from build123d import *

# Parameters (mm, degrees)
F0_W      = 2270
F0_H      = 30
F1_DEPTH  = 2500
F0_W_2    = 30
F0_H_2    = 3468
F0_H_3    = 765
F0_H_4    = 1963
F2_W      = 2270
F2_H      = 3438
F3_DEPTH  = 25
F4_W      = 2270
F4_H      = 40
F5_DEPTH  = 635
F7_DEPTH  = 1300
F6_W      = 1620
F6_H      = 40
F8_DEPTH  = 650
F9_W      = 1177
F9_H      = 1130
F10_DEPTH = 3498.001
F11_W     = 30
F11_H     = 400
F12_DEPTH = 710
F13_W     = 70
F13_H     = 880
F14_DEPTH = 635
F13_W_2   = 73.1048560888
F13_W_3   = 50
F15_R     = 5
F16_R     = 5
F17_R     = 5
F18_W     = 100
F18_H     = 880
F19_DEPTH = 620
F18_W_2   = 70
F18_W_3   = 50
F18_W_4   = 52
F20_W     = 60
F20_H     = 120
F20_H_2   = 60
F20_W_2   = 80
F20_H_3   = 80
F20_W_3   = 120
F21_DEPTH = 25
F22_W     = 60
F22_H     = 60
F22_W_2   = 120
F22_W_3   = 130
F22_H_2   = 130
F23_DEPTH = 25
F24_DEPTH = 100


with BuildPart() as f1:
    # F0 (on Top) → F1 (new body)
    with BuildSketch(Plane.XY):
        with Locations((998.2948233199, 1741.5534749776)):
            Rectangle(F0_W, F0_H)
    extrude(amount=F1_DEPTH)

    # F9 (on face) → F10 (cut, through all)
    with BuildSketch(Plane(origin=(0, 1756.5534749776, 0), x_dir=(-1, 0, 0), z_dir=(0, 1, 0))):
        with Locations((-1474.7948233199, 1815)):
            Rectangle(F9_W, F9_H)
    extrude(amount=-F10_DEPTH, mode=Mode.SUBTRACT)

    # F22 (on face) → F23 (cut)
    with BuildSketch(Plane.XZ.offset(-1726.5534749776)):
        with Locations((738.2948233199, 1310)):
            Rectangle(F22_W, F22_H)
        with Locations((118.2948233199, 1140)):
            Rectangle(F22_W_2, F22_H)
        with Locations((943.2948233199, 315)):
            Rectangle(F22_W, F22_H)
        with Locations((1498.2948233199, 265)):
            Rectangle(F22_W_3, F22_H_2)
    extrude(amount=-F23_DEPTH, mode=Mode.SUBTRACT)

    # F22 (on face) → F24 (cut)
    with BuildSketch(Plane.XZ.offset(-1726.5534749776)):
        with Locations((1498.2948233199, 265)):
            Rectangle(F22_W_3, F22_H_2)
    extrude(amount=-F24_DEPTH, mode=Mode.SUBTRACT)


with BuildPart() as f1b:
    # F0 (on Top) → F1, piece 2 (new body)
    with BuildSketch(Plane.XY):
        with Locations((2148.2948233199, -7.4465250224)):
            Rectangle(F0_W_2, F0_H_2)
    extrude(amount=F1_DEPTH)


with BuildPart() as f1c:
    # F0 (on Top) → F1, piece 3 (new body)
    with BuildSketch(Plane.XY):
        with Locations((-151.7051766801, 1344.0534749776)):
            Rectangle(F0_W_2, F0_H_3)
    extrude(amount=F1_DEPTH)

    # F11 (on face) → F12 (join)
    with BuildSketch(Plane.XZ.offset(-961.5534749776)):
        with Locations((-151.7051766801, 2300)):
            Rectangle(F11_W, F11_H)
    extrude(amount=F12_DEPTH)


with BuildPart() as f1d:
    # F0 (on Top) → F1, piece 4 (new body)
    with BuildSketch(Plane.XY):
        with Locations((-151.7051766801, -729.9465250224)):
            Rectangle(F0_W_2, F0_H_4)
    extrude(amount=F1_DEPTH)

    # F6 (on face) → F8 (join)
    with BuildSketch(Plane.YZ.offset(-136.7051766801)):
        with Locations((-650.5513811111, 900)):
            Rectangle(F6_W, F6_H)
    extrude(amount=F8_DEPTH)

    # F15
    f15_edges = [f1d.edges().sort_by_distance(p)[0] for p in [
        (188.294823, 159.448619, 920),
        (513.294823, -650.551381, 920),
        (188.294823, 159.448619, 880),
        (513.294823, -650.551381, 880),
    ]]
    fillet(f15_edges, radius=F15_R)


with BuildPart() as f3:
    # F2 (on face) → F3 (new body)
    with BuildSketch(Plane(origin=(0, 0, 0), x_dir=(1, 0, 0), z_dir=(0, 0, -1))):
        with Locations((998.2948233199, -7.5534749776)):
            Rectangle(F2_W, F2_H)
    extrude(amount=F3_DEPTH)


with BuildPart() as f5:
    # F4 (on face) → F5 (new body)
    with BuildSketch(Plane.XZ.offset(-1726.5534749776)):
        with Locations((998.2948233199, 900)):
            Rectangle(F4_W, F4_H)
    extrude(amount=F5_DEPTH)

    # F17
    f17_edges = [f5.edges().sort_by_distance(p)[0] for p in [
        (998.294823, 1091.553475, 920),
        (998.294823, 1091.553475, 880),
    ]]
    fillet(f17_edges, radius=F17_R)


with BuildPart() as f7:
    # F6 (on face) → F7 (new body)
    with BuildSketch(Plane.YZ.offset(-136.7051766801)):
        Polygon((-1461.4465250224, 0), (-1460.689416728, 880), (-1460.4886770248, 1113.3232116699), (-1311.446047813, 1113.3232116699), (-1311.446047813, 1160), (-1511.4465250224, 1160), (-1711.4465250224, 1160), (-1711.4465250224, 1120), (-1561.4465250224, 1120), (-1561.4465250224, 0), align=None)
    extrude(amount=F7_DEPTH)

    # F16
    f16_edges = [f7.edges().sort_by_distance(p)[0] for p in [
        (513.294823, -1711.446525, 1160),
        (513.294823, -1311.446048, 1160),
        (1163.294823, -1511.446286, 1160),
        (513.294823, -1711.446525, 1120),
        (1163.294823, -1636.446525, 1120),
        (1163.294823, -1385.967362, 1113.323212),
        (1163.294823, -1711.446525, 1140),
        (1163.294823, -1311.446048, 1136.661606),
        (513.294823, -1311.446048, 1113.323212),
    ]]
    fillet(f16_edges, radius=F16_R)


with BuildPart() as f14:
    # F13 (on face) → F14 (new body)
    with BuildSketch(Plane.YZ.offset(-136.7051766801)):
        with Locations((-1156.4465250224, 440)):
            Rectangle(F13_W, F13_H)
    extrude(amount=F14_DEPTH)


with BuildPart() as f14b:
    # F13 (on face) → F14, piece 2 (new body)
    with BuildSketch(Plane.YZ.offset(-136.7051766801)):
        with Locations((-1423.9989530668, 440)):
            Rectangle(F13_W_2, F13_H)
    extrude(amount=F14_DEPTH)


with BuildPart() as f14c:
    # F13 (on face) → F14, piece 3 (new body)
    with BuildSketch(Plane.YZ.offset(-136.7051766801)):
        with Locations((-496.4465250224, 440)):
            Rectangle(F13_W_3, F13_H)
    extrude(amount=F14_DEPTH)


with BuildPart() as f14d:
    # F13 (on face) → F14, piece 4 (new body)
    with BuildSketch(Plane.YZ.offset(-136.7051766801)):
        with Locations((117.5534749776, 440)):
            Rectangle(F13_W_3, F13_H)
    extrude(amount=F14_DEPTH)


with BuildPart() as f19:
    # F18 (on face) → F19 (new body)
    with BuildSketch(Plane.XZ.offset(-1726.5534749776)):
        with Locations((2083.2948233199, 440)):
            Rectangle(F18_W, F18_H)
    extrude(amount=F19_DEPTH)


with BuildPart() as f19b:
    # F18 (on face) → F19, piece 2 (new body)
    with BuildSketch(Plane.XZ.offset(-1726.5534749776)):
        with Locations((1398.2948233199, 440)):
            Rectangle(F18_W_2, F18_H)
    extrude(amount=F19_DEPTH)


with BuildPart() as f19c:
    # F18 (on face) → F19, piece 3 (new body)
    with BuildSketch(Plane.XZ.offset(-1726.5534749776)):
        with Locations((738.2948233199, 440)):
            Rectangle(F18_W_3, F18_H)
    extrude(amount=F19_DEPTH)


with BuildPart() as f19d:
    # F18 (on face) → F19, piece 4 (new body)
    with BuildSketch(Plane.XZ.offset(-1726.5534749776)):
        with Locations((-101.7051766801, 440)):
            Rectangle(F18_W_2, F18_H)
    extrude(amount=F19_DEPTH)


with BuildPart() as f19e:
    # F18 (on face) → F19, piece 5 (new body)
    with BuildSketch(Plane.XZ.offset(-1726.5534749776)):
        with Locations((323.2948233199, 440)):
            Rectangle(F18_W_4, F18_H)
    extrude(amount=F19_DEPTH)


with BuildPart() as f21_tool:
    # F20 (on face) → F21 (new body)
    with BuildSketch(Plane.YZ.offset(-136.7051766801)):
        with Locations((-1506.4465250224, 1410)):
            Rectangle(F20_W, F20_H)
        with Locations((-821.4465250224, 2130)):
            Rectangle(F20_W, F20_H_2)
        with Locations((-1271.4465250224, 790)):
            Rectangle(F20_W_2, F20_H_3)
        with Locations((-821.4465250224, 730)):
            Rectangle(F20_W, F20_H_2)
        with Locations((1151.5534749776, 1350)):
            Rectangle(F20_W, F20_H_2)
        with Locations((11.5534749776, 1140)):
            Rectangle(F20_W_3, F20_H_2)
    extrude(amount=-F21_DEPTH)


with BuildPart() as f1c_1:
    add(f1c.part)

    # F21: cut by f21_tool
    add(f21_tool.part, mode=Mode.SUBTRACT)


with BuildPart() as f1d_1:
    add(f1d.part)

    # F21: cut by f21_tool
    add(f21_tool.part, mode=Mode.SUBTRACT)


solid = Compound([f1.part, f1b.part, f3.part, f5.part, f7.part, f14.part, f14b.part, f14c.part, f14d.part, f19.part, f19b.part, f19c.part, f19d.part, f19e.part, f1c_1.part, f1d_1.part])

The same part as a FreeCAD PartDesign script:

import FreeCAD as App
import Part
import Sketcher


def edges_at(feature, points):
    """Names of the edges that pass closest to the given points."""
    edges = feature.Shape.Edges
    near = lambda p: min(range(len(edges)), key=lambda i: edges[i].distToShape(Part.Vertex(*p))[0])
    return sorted({f"Edge{near(p) + 1}" for p in points})


def add_polygon(sketch, points):
    """Adds a closed chain of lines whose ends are joined by coincident constraints."""
    first, n = sketch.GeometryCount, len(points)
    for a, b in zip(points, points[1:] + points[:1]):
        sketch.addGeometry(Part.LineSegment(App.Vector(*a, 0), App.Vector(*b, 0)), False)
    for i in range(n):
        sketch.addConstraint(Sketcher.Constraint("Coincident", first + i, 2, first + (i + 1) % n, 1))

doc = App.newDocument("Part")
body = doc.addObject("PartDesign::Body", "Body")

# Sketch on XY plane
sketch1 = doc.addObject("Sketcher::SketchObject", "Sketch")
body.addObject(sketch1)
sketch1.AttachmentSupport = (doc.XY_Plane, [""])
sketch1.MapMode = "FlatFace"
add_polygon(sketch1, [(-136.705177, 1756.553475), (-136.705177, 1726.553475), (2133.294823, 1726.553475), (2133.294823, 1756.553475)])  # lines 0-3
sketch1.addConstraint(Sketcher.Constraint("Vertical", 0))
sketch1.addConstraint(Sketcher.Constraint("Horizontal", 1))
sketch1.addConstraint(Sketcher.Constraint("Vertical", 2))
sketch1.addConstraint(Sketcher.Constraint("Horizontal", 3))
sketch1.addConstraint(Sketcher.Constraint("DistanceX", 1, 1, 1, 2, 2270.0))
sketch1.addConstraint(Sketcher.Constraint("DistanceY", 0, 2, 0, 1, 30.0))
sketch1.addConstraint(Sketcher.Constraint("DistanceX", 0, 2, -1, 1, 136.705177))
sketch1.addConstraint(Sketcher.Constraint("DistanceY", -1, 1, 0, 2, 1726.553475))
pad1 = doc.addObject("PartDesign::Pad", "Pad")
body.addObject(pad1)
pad1.Profile = sketch1
pad1.Length = 2500

# Sketch on XZ plane
sketch2 = doc.addObject("Sketcher::SketchObject", "Sketch001")
body.addObject(sketch2)
sketch2.AttachmentSupport = (doc.XZ_Plane, [""])
sketch2.MapMode = "FlatFace"
sketch2.AttachmentOffset = App.Placement(App.Vector(0, 0, -1756.553475), App.Rotation())
add_polygon(sketch2, [(2063.294823, 2380), (2063.294823, 1250), (886.294823, 1250), (886.294823, 2380)])  # lines 0-3
sketch2.addConstraint(Sketcher.Constraint("Vertical", 0))
sketch2.addConstraint(Sketcher.Constraint("Horizontal", 1))
sketch2.addConstraint(Sketcher.Constraint("Vertical", 2))
sketch2.addConstraint(Sketcher.Constraint("Horizontal", 3))
sketch2.addConstraint(Sketcher.Constraint("DistanceX", 1, 2, 1, 1, 1177.0))
sketch2.addConstraint(Sketcher.Constraint("DistanceY", 0, 2, 0, 1, 1130.0))
sketch2.addConstraint(Sketcher.Constraint("DistanceY", -1, 1, 0, 2, 1250.0))
sketch2.addConstraint(Sketcher.Constraint("DistanceX", -1, 1, 0, 2, 2063.294823))
pocket1 = doc.addObject("PartDesign::Pocket", "Pocket")
body.addObject(pocket1)
pocket1.Profile = sketch2
pocket1.Type = "ThroughAll"
pocket1.Reversed = True

# Sketch on XZ plane
sketch3 = doc.addObject("Sketcher::SketchObject", "Sketch002")
body.addObject(sketch3)
sketch3.AttachmentSupport = (doc.XZ_Plane, [""])
sketch3.MapMode = "FlatFace"
sketch3.AttachmentOffset = App.Placement(App.Vector(0, 0, -1726.553475), App.Rotation())
add_polygon(sketch3, [(708.294823, 1340), (708.294823, 1280), (768.294823, 1280), (768.294823, 1340)])  # lines 0-3
add_polygon(sketch3, [(58.294823, 1170), (58.294823, 1110), (178.294823, 1110), (178.294823, 1170)])  # lines 4-7
add_polygon(sketch3, [(913.294823, 345), (913.294823, 285), (973.294823, 285), (973.294823, 345)])  # lines 8-11
add_polygon(sketch3, [(1433.294823, 330), (1433.294823, 200), (1563.294823, 200), (1563.294823, 330)])  # lines 12-15
sketch3.addConstraint(Sketcher.Constraint("Vertical", 0))
sketch3.addConstraint(Sketcher.Constraint("Horizontal", 1))
sketch3.addConstraint(Sketcher.Constraint("Vertical", 2))
sketch3.addConstraint(Sketcher.Constraint("Horizontal", 3))
sketch3.addConstraint(Sketcher.Constraint("Vertical", 4))
sketch3.addConstraint(Sketcher.Constraint("Horizontal", 5))
sketch3.addConstraint(Sketcher.Constraint("Vertical", 6))
sketch3.addConstraint(Sketcher.Constraint("Horizontal", 7))
sketch3.addConstraint(Sketcher.Constraint("Vertical", 8))
sketch3.addConstraint(Sketcher.Constraint("Horizontal", 9))
sketch3.addConstraint(Sketcher.Constraint("Vertical", 10))
sketch3.addConstraint(Sketcher.Constraint("Horizontal", 11))
sketch3.addConstraint(Sketcher.Constraint("Vertical", 12))
sketch3.addConstraint(Sketcher.Constraint("Horizontal", 13))
sketch3.addConstraint(Sketcher.Constraint("Vertical", 14))
sketch3.addConstraint(Sketcher.Constraint("Horizontal", 15))
sketch3.addConstraint(Sketcher.Constraint("Equal", 3, 9))
sketch3.addConstraint(Sketcher.Constraint("Equal", 11, 0))
sketch3.addConstraint(Sketcher.Constraint("Equal", 2, 4))
sketch3.addConstraint(Sketcher.Constraint("Equal", 6, 8))
sketch3.addConstraint(Sketcher.Constraint("Equal", 15, 12))
sketch3.addConstraint(Sketcher.Constraint("DistanceX", 1, 1, 1, 2, 60.0))
sketch3.addConstraint(Sketcher.Constraint("DistanceX", 5, 1, 5, 2, 120.0))
sketch3.addConstraint(Sketcher.Constraint("DistanceX", 13, 1, 13, 2, 130.0))
sketch3.addConstraint(Sketcher.Constraint("DistanceY", -1, 1, 0, 2, 1280.0))
sketch3.addConstraint(Sketcher.Constraint("DistanceY", -1, 1, 4, 2, 1110.0))
sketch3.addConstraint(Sketcher.Constraint("DistanceY", -1, 1, 8, 2, 285.0))
sketch3.addConstraint(Sketcher.Constraint("DistanceY", -1, 1, 12, 2, 200.0))
sketch3.addConstraint(Sketcher.Constraint("DistanceX", 4, 2, 0, 2, 650.0))
sketch3.addConstraint(Sketcher.Constraint("DistanceX", 1, 2, 8, 2, 145.0))
sketch3.addConstraint(Sketcher.Constraint("DistanceX", 9, 2, 12, 2, 460.0))
sketch3.addConstraint(Sketcher.Constraint("DistanceX", -1, 1, 0, 2, 708.294823))
pocket2 = doc.addObject("PartDesign::Pocket", "Pocket001")
body.addObject(pocket2)
pocket2.Profile = sketch3
pocket2.Length = 25

# Sketch on XZ plane
sketch4 = doc.addObject("Sketcher::SketchObject", "Sketch003")
body.addObject(sketch4)
sketch4.AttachmentSupport = (doc.XZ_Plane, [""])
sketch4.MapMode = "FlatFace"
sketch4.AttachmentOffset = App.Placement(App.Vector(0, 0, -1726.553475), App.Rotation())
add_polygon(sketch4, [(1433.294823, 330), (1433.294823, 200), (1563.294823, 200), (1563.294823, 330)])  # lines 0-3
sketch4.addConstraint(Sketcher.Constraint("Vertical", 0))
sketch4.addConstraint(Sketcher.Constraint("Horizontal", 1))
sketch4.addConstraint(Sketcher.Constraint("Vertical", 2))
sketch4.addConstraint(Sketcher.Constraint("Horizontal", 3))
sketch4.addConstraint(Sketcher.Constraint("Equal", 3, 0))
sketch4.addConstraint(Sketcher.Constraint("DistanceX", 1, 1, 1, 2, 130.0))
sketch4.addConstraint(Sketcher.Constraint("DistanceY", -1, 1, 0, 2, 200.0))
sketch4.addConstraint(Sketcher.Constraint("DistanceX", -1, 1, 0, 2, 1433.294823))
pocket3 = doc.addObject("PartDesign::Pocket", "Pocket002")
body.addObject(pocket3)
pocket3.Profile = sketch4
pocket3.Length = 100
body2 = doc.addObject("PartDesign::Body", "Body001")

# Sketch on XY plane
sketch5 = doc.addObject("Sketcher::SketchObject", "Sketch004")
body2.addObject(sketch5)
sketch5.AttachmentSupport = (doc.getObject("XY_Plane001"), [""])
sketch5.MapMode = "FlatFace"
add_polygon(sketch5, [(2133.294823, 1726.553475), (2133.294823, -1741.446525), (2163.294823, -1741.446525), (2163.294823, 1726.553475)])  # lines 0-3
sketch5.addConstraint(Sketcher.Constraint("Vertical", 0))
sketch5.addConstraint(Sketcher.Constraint("Horizontal", 1))
sketch5.addConstraint(Sketcher.Constraint("Vertical", 2))
sketch5.addConstraint(Sketcher.Constraint("Horizontal", 3))
sketch5.addConstraint(Sketcher.Constraint("DistanceX", 1, 1, 1, 2, 30.0))
sketch5.addConstraint(Sketcher.Constraint("DistanceY", 0, 2, 0, 1, 3468.0))
sketch5.addConstraint(Sketcher.Constraint("DistanceX", -1, 1, 0, 2, 2133.294823))
sketch5.addConstraint(Sketcher.Constraint("DistanceY", 0, 2, -1, 1, 1741.446525))
pad2 = doc.addObject("PartDesign::Pad", "Pad001")
body2.addObject(pad2)
pad2.Profile = sketch5
pad2.Length = 2500
body3 = doc.addObject("PartDesign::Body", "Body002")

# Sketch on XY plane
sketch6 = doc.addObject("Sketcher::SketchObject", "Sketch005")
body3.addObject(sketch6)
sketch6.AttachmentSupport = (doc.getObject("XY_Plane002"), [""])
sketch6.MapMode = "FlatFace"
add_polygon(sketch6, [(-166.705177, 1726.553475), (-166.705177, 961.553475), (-136.705177, 961.553475), (-136.705177, 1726.553475)])  # lines 0-3
sketch6.addConstraint(Sketcher.Constraint("Vertical", 0))
sketch6.addConstraint(Sketcher.Constraint("Horizontal", 1))
sketch6.addConstraint(Sketcher.Constraint("Vertical", 2))
sketch6.addConstraint(Sketcher.Constraint("Horizontal", 3))
sketch6.addConstraint(Sketcher.Constraint("DistanceX", 1, 1, 1, 2, 30.0))
sketch6.addConstraint(Sketcher.Constraint("DistanceY", 0, 2, 0, 1, 765.0))
sketch6.addConstraint(Sketcher.Constraint("DistanceX", 0, 2, -1, 1, 166.705177))
sketch6.addConstraint(Sketcher.Constraint("DistanceY", -1, 1, 0, 2, 961.553475))
pad3 = doc.addObject("PartDesign::Pad", "Pad002")
body3.addObject(pad3)
pad3.Profile = sketch6
pad3.Length = 2500

# Sketch on XZ plane
sketch7 = doc.addObject("Sketcher::SketchObject", "Sketch006")
body3.addObject(sketch7)
sketch7.AttachmentSupport = (doc.getObject("XZ_Plane002"), [""])
sketch7.MapMode = "FlatFace"
sketch7.AttachmentOffset = App.Placement(App.Vector(0, 0, -961.553475), App.Rotation())
add_polygon(sketch7, [(-166.705177, 2500), (-166.705177, 2100), (-136.705177, 2100), (-136.705177, 2500)])  # lines 0-3
sketch7.addConstraint(Sketcher.Constraint("Vertical", 0))
sketch7.addConstraint(Sketcher.Constraint("Horizontal", 1))
sketch7.addConstraint(Sketcher.Constraint("Vertical", 2))
sketch7.addConstraint(Sketcher.Constraint("Horizontal", 3))
sketch7.addConstraint(Sketcher.Constraint("DistanceX", 1, 1, 1, 2, 30.0))
sketch7.addConstraint(Sketcher.Constraint("DistanceY", 0, 2, 0, 1, 400.0))
sketch7.addConstraint(Sketcher.Constraint("DistanceY", -1, 1, 0, 2, 2100.0))
sketch7.addConstraint(Sketcher.Constraint("DistanceX", 0, 2, -1, 1, 166.705177))
pad4 = doc.addObject("PartDesign::Pad", "Pad003")
body3.addObject(pad4)
pad4.Profile = sketch7
pad4.Length = 710
body4 = doc.addObject("PartDesign::Body", "Body003")

# Sketch on XY plane
sketch8 = doc.addObject("Sketcher::SketchObject", "Sketch007")
body4.addObject(sketch8)
sketch8.AttachmentSupport = (doc.getObject("XY_Plane003"), [""])
sketch8.MapMode = "FlatFace"
add_polygon(sketch8, [(-166.705177, 251.553475), (-166.705177, -1711.446525), (-136.705177, -1711.446525), (-136.705177, 251.553475)])  # lines 0-3
sketch8.addConstraint(Sketcher.Constraint("Vertical", 0))
sketch8.addConstraint(Sketcher.Constraint("Horizontal", 1))
sketch8.addConstraint(Sketcher.Constraint("Vertical", 2))
sketch8.addConstraint(Sketcher.Constraint("Horizontal", 3))
sketch8.addConstraint(Sketcher.Constraint("DistanceX", 1, 1, 1, 2, 30.0))
sketch8.addConstraint(Sketcher.Constraint("DistanceY", 0, 2, 0, 1, 1963.0))
sketch8.addConstraint(Sketcher.Constraint("DistanceX", 0, 2, -1, 1, 166.705177))
sketch8.addConstraint(Sketcher.Constraint("DistanceY", 0, 2, -1, 1, 1711.446525))
pad5 = doc.addObject("PartDesign::Pad", "Pad004")
body4.addObject(pad5)
pad5.Profile = sketch8
pad5.Length = 2500

# Sketch on YZ plane
sketch9 = doc.addObject("Sketcher::SketchObject", "Sketch008")
body4.addObject(sketch9)
sketch9.AttachmentSupport = (doc.getObject("YZ_Plane003"), [""])
sketch9.MapMode = "FlatFace"
sketch9.AttachmentOffset = App.Placement(App.Vector(0, 0, -136.705177), App.Rotation())
add_polygon(sketch9, [(-1460.551381, 920), (-1460.551381, 880), (159.448619, 880), (159.448619, 920)])  # lines 0-3
sketch9.addConstraint(Sketcher.Constraint("Vertical", 0))
sketch9.addConstraint(Sketcher.Constraint("Horizontal", 1))
sketch9.addConstraint(Sketcher.Constraint("Vertical", 2))
sketch9.addConstraint(Sketcher.Constraint("Horizontal", 3))
sketch9.addConstraint(Sketcher.Constraint("DistanceX", 1, 1, 1, 2, 1620.0))
sketch9.addConstraint(Sketcher.Constraint("DistanceY", 0, 2, 0, 1, 40.0))
sketch9.addConstraint(Sketcher.Constraint("DistanceY", -1, 1, 0, 2, 880.0))
sketch9.addConstraint(Sketcher.Constraint("DistanceX", 0, 2, -1, 1, 1460.551381))
pad6 = doc.addObject("PartDesign::Pad", "Pad005")
body4.addObject(pad6)
pad6.Profile = sketch9
pad6.Length = 650
doc.recompute()

fillet = doc.addObject("PartDesign::Fillet", "Fillet")
body4.addObject(fillet)
fillet.Base = (pad6, edges_at(pad6, [
    (188.295, 159.449, 920),
    (513.295, -650.551, 920),
    (188.295, 159.449, 880),
    (513.295, -650.551, 880),
]))
fillet.Radius = 5
body5 = doc.addObject("PartDesign::Body", "Body004")

# Sketch on XY plane
sketch10 = doc.addObject("Sketcher::SketchObject", "Sketch009")
body5.addObject(sketch10)
sketch10.AttachmentSupport = (doc.getObject("XY_Plane004"), [""])
sketch10.MapMode = "FlatFace"
add_polygon(sketch10, [(-136.705177, -1711.446525), (-136.705177, 1726.553475), (2133.294823, 1726.553475), (2133.294823, -1711.446525)])  # lines 0-3
sketch10.addConstraint(Sketcher.Constraint("Vertical", 0))
sketch10.addConstraint(Sketcher.Constraint("Horizontal", 1))
sketch10.addConstraint(Sketcher.Constraint("Vertical", 2))
sketch10.addConstraint(Sketcher.Constraint("Horizontal", 3))
sketch10.addConstraint(Sketcher.Constraint("DistanceX", 1, 1, 1, 2, 2270.0))
sketch10.addConstraint(Sketcher.Constraint("DistanceY", 0, 1, 0, 2, 3438.0))
sketch10.addConstraint(Sketcher.Constraint("DistanceX", 0, 2, -1, 1, 136.705177))
sketch10.addConstraint(Sketcher.Constraint("DistanceY", -1, 1, 0, 2, 1726.553475))
pad7 = doc.addObject("PartDesign::Pad", "Pad006")
body5.addObject(pad7)
pad7.Profile = sketch10
pad7.Length = 25
pad7.Reversed = True
body6 = doc.addObject("PartDesign::Body", "Body005")

# Sketch on XZ plane
sketch11 = doc.addObject("Sketcher::SketchObject", "Sketch010")
body6.addObject(sketch11)
sketch11.AttachmentSupport = (doc.getObject("XZ_Plane005"), [""])
sketch11.MapMode = "FlatFace"
sketch11.AttachmentOffset = App.Placement(App.Vector(0, 0, -1726.553475), App.Rotation())
add_polygon(sketch11, [(-136.705177, 920), (-136.705177, 880), (2133.294823, 880), (2133.294823, 920)])  # lines 0-3
sketch11.addConstraint(Sketcher.Constraint("Vertical", 0))
sketch11.addConstraint(Sketcher.Constraint("Horizontal", 1))
sketch11.addConstraint(Sketcher.Constraint("Vertical", 2))
sketch11.addConstraint(Sketcher.Constraint("Horizontal", 3))
sketch11.addConstraint(Sketcher.Constraint("DistanceX", 1, 1, 1, 2, 2270.0))
sketch11.addConstraint(Sketcher.Constraint("DistanceY", 0, 2, 0, 1, 40.0))
sketch11.addConstraint(Sketcher.Constraint("DistanceY", -1, 1, 0, 2, 880.0))
sketch11.addConstraint(Sketcher.Constraint("DistanceX", 0, 2, -1, 1, 136.705177))
pad8 = doc.addObject("PartDesign::Pad", "Pad007")
body6.addObject(pad8)
pad8.Profile = sketch11
pad8.Length = 635
doc.recompute()

fillet2 = doc.addObject("PartDesign::Fillet", "Fillet001")
body6.addObject(fillet2)
fillet2.Base = (pad8, edges_at(pad8, [(998.295, 1091.553, 920), (998.295, 1091.553, 880)]))
fillet2.Radius = 5
body7 = doc.addObject("PartDesign::Body", "Body006")

# Sketch on YZ plane
sketch12 = doc.addObject("Sketcher::SketchObject", "Sketch011")
body7.addObject(sketch12)
sketch12.AttachmentSupport = (doc.getObject("YZ_Plane006"), [""])
sketch12.MapMode = "FlatFace"
sketch12.AttachmentOffset = App.Placement(App.Vector(0, 0, -136.705177), App.Rotation())
add_polygon(sketch12, [(-1461.446525, 0), (-1460.488677, 1113.323212), (-1311.446048, 1113.323212), (-1311.446048, 1160), (-1711.446525, 1160), (-1711.446525, 1120), (-1561.446525, 1120), (-1561.446525, 0)])  # lines 0-7
sketch12.addConstraint(Sketcher.Constraint("Horizontal", 1))
sketch12.addConstraint(Sketcher.Constraint("Vertical", 2))
sketch12.addConstraint(Sketcher.Constraint("Horizontal", 3))
sketch12.addConstraint(Sketcher.Constraint("Vertical", 4))
sketch12.addConstraint(Sketcher.Constraint("Horizontal", 5))
sketch12.addConstraint(Sketcher.Constraint("Vertical", 6))
sketch12.addConstraint(Sketcher.Constraint("Horizontal", 7))
sketch12.addConstraint(Sketcher.Constraint("PointOnObject", 6, 2, -1))
sketch12.addConstraint(Sketcher.Constraint("DistanceX", 5, 1, 5, 2, 150.0))
sketch12.addConstraint(Sketcher.Constraint("DistanceX", 7, 1, 7, 2, 100.0))
sketch12.addConstraint(Sketcher.Constraint("DistanceY", 4, 2, 4, 1, 40.0))
sketch12.addConstraint(Sketcher.Constraint("DistanceY", 6, 2, 6, 1, 1120.0))
sketch12.addConstraint(Sketcher.Constraint("DistanceX", 1, 1, 1, 2, 149.042629))
sketch12.addConstraint(Sketcher.Constraint("DistanceY", 2, 1, 2, 2, 46.676788))
sketch12.addConstraint(Sketcher.Constraint("DistanceX", 3, 2, 3, 1, 400.000477))
sketch12.addConstraint(Sketcher.Constraint("DistanceX", 0, 2, -1, 1, 1460.488677))
pad9 = doc.addObject("PartDesign::Pad", "Pad008")
body7.addObject(pad9)
pad9.Profile = sketch12
pad9.Length = 1300
doc.recompute()

fillet3 = doc.addObject("PartDesign::Fillet", "Fillet002")
body7.addObject(fillet3)
fillet3.Base = (pad9, edges_at(pad9, [
    (513.295, -1711.447, 1160),
    (513.295, -1311.446, 1160),
    (1163.295, -1511.446, 1160),
    (513.295, -1711.447, 1120),
    (1163.295, -1636.447, 1120),
    (1163.295, -1385.967, 1113.323),
    (1163.295, -1711.447, 1140),
    (1163.295, -1311.446, 1136.662),
    (513.295, -1311.446, 1113.323),
]))
fillet3.Radius = 5
body8 = doc.addObject("PartDesign::Body", "Body007")

# Sketch on YZ plane
sketch13 = doc.addObject("Sketcher::SketchObject", "Sketch012")
body8.addObject(sketch13)
sketch13.AttachmentSupport = (doc.getObject("YZ_Plane007"), [""])
sketch13.MapMode = "FlatFace"
sketch13.AttachmentOffset = App.Placement(App.Vector(0, 0, -136.705177), App.Rotation())
add_polygon(sketch13, [(-1191.446525, 880), (-1191.446525, 0), (-1121.446525, 0), (-1121.446525, 880)])  # lines 0-3
sketch13.addConstraint(Sketcher.Constraint("Vertical", 0))
sketch13.addConstraint(Sketcher.Constraint("Horizontal", 1))
sketch13.addConstraint(Sketcher.Constraint("Vertical", 2))
sketch13.addConstraint(Sketcher.Constraint("Horizontal", 3))
sketch13.addConstraint(Sketcher.Constraint("PointOnObject", 0, 2, -1))
sketch13.addConstraint(Sketcher.Constraint("DistanceX", 1, 1, 1, 2, 70.0))
sketch13.addConstraint(Sketcher.Constraint("DistanceY", 0, 2, 0, 1, 880.0))
sketch13.addConstraint(Sketcher.Constraint("DistanceX", 0, 2, -1, 1, 1191.446525))
pad10 = doc.addObject("PartDesign::Pad", "Pad009")
body8.addObject(pad10)
pad10.Profile = sketch13
pad10.Length = 635
body9 = doc.addObject("PartDesign::Body", "Body008")

# Sketch on YZ plane
sketch14 = doc.addObject("Sketcher::SketchObject", "Sketch013")
body9.addObject(sketch14)
sketch14.AttachmentSupport = (doc.getObject("YZ_Plane008"), [""])
sketch14.MapMode = "FlatFace"
sketch14.AttachmentOffset = App.Placement(App.Vector(0, 0, -136.705177), App.Rotation())
add_polygon(sketch14, [(-1460.551381, 880), (-1460.551381, 0), (-1387.446525, 0), (-1387.446525, 880)])  # lines 0-3
sketch14.addConstraint(Sketcher.Constraint("Vertical", 0))
sketch14.addConstraint(Sketcher.Constraint("Horizontal", 1))
sketch14.addConstraint(Sketcher.Constraint("Vertical", 2))
sketch14.addConstraint(Sketcher.Constraint("Horizontal", 3))
sketch14.addConstraint(Sketcher.Constraint("PointOnObject", 0, 2, -1))
sketch14.addConstraint(Sketcher.Constraint("DistanceY", 0, 2, 0, 1, 880.0))
sketch14.addConstraint(Sketcher.Constraint("DistanceX", 1, 1, 1, 2, 73.104856))
sketch14.addConstraint(Sketcher.Constraint("DistanceX", 0, 2, -1, 1, 1460.551381))
pad11 = doc.addObject("PartDesign::Pad", "Pad010")
body9.addObject(pad11)
pad11.Profile = sketch14
pad11.Length = 635
body10 = doc.addObject("PartDesign::Body", "Body009")

# Sketch on YZ plane
sketch15 = doc.addObject("Sketcher::SketchObject", "Sketch014")
body10.addObject(sketch15)
sketch15.AttachmentSupport = (doc.getObject("YZ_Plane009"), [""])
sketch15.MapMode = "FlatFace"
sketch15.AttachmentOffset = App.Placement(App.Vector(0, 0, -136.705177), App.Rotation())
add_polygon(sketch15, [(-521.446525, 880), (-521.446525, 0), (-471.446525, 0), (-471.446525, 880)])  # lines 0-3
sketch15.addConstraint(Sketcher.Constraint("Vertical", 0))
sketch15.addConstraint(Sketcher.Constraint("Horizontal", 1))
sketch15.addConstraint(Sketcher.Constraint("Vertical", 2))
sketch15.addConstraint(Sketcher.Constraint("Horizontal", 3))
sketch15.addConstraint(Sketcher.Constraint("PointOnObject", 0, 2, -1))
sketch15.addConstraint(Sketcher.Constraint("DistanceX", 1, 1, 1, 2, 50.0))
sketch15.addConstraint(Sketcher.Constraint("DistanceY", 0, 2, 0, 1, 880.0))
sketch15.addConstraint(Sketcher.Constraint("DistanceX", 0, 2, -1, 1, 521.446525))
pad12 = doc.addObject("PartDesign::Pad", "Pad011")
body10.addObject(pad12)
pad12.Profile = sketch15
pad12.Length = 635
body11 = doc.addObject("PartDesign::Body", "Body010")

# Sketch on YZ plane
sketch16 = doc.addObject("Sketcher::SketchObject", "Sketch015")
body11.addObject(sketch16)
sketch16.AttachmentSupport = (doc.getObject("YZ_Plane010"), [""])
sketch16.MapMode = "FlatFace"
sketch16.AttachmentOffset = App.Placement(App.Vector(0, 0, -136.705177), App.Rotation())
add_polygon(sketch16, [(92.553475, 880), (92.553475, 0), (142.553475, 0), (142.553475, 880)])  # lines 0-3
sketch16.addConstraint(Sketcher.Constraint("Vertical", 0))
sketch16.addConstraint(Sketcher.Constraint("Horizontal", 1))
sketch16.addConstraint(Sketcher.Constraint("Vertical", 2))
sketch16.addConstraint(Sketcher.Constraint("Horizontal", 3))
sketch16.addConstraint(Sketcher.Constraint("PointOnObject", 0, 2, -1))
sketch16.addConstraint(Sketcher.Constraint("DistanceX", 1, 1, 1, 2, 50.0))
sketch16.addConstraint(Sketcher.Constraint("DistanceY", 0, 2, 0, 1, 880.0))
sketch16.addConstraint(Sketcher.Constraint("DistanceX", -1, 1, 0, 2, 92.553475))
pad13 = doc.addObject("PartDesign::Pad", "Pad012")
body11.addObject(pad13)
pad13.Profile = sketch16
pad13.Length = 635
body12 = doc.addObject("PartDesign::Body", "Body011")

# Sketch on XZ plane
sketch17 = doc.addObject("Sketcher::SketchObject", "Sketch016")
body12.addObject(sketch17)
sketch17.AttachmentSupport = (doc.getObject("XZ_Plane011"), [""])
sketch17.MapMode = "FlatFace"
sketch17.AttachmentOffset = App.Placement(App.Vector(0, 0, -1726.553475), App.Rotation())
add_polygon(sketch17, [(2033.294823, 880), (2033.294823, 0), (2133.294823, 0), (2133.294823, 880)])  # lines 0-3
sketch17.addConstraint(Sketcher.Constraint("Vertical", 0))
sketch17.addConstraint(Sketcher.Constraint("Horizontal", 1))
sketch17.addConstraint(Sketcher.Constraint("Vertical", 2))
sketch17.addConstraint(Sketcher.Constraint("Horizontal", 3))
sketch17.addConstraint(Sketcher.Constraint("PointOnObject", 0, 2, -1))
sketch17.addConstraint(Sketcher.Constraint("DistanceX", 1, 1, 1, 2, 100.0))
sketch17.addConstraint(Sketcher.Constraint("DistanceY", 0, 2, 0, 1, 880.0))
sketch17.addConstraint(Sketcher.Constraint("DistanceX", -1, 1, 0, 2, 2033.294823))
pad14 = doc.addObject("PartDesign::Pad", "Pad013")
body12.addObject(pad14)
pad14.Profile = sketch17
pad14.Length = 620
body13 = doc.addObject("PartDesign::Body", "Body012")

# Sketch on XZ plane
sketch18 = doc.addObject("Sketcher::SketchObject", "Sketch017")
body13.addObject(sketch18)
sketch18.AttachmentSupport = (doc.getObject("XZ_Plane012"), [""])
sketch18.MapMode = "FlatFace"
sketch18.AttachmentOffset = App.Placement(App.Vector(0, 0, -1726.553475), App.Rotation())
add_polygon(sketch18, [(1363.294823, 880), (1363.294823, 0), (1433.294823, 0), (1433.294823, 880)])  # lines 0-3
sketch18.addConstraint(Sketcher.Constraint("Vertical", 0))
sketch18.addConstraint(Sketcher.Constraint("Horizontal", 1))
sketch18.addConstraint(Sketcher.Constraint("Vertical", 2))
sketch18.addConstraint(Sketcher.Constraint("Horizontal", 3))
sketch18.addConstraint(Sketcher.Constraint("PointOnObject", 0, 2, -1))
sketch18.addConstraint(Sketcher.Constraint("DistanceX", 1, 1, 1, 2, 70.0))
sketch18.addConstraint(Sketcher.Constraint("DistanceY", 0, 2, 0, 1, 880.0))
sketch18.addConstraint(Sketcher.Constraint("DistanceX", -1, 1, 0, 2, 1363.294823))
pad15 = doc.addObject("PartDesign::Pad", "Pad014")
body13.addObject(pad15)
pad15.Profile = sketch18
pad15.Length = 620
body14 = doc.addObject("PartDesign::Body", "Body013")

# Sketch on XZ plane
sketch19 = doc.addObject("Sketcher::SketchObject", "Sketch018")
body14.addObject(sketch19)
sketch19.AttachmentSupport = (doc.getObject("XZ_Plane013"), [""])
sketch19.MapMode = "FlatFace"
sketch19.AttachmentOffset = App.Placement(App.Vector(0, 0, -1726.553475), App.Rotation())
add_polygon(sketch19, [(713.294823, 880), (713.294823, 0), (763.294823, 0), (763.294823, 880)])  # lines 0-3
sketch19.addConstraint(Sketcher.Constraint("Vertical", 0))
sketch19.addConstraint(Sketcher.Constraint("Horizontal", 1))
sketch19.addConstraint(Sketcher.Constraint("Vertical", 2))
sketch19.addConstraint(Sketcher.Constraint("Horizontal", 3))
sketch19.addConstraint(Sketcher.Constraint("PointOnObject", 0, 2, -1))
sketch19.addConstraint(Sketcher.Constraint("DistanceX", 1, 1, 1, 2, 50.0))
sketch19.addConstraint(Sketcher.Constraint("DistanceY", 0, 2, 0, 1, 880.0))
sketch19.addConstraint(Sketcher.Constraint("DistanceX", -1, 1, 0, 2, 713.294823))
pad16 = doc.addObject("PartDesign::Pad", "Pad015")
body14.addObject(pad16)
pad16.Profile = sketch19
pad16.Length = 620
body15 = doc.addObject("PartDesign::Body", "Body014")

# Sketch on XZ plane
sketch20 = doc.addObject("Sketcher::SketchObject", "Sketch019")
body15.addObject(sketch20)
sketch20.AttachmentSupport = (doc.getObject("XZ_Plane014"), [""])
sketch20.MapMode = "FlatFace"
sketch20.AttachmentOffset = App.Placement(App.Vector(0, 0, -1726.553475), App.Rotation())
add_polygon(sketch20, [(-136.705177, 880), (-136.705177, 0), (-66.705177, 0), (-66.705177, 880)])  # lines 0-3
sketch20.addConstraint(Sketcher.Constraint("Vertical", 0))
sketch20.addConstraint(Sketcher.Constraint("Horizontal", 1))
sketch20.addConstraint(Sketcher.Constraint("Vertical", 2))
sketch20.addConstraint(Sketcher.Constraint("Horizontal", 3))
sketch20.addConstraint(Sketcher.Constraint("PointOnObject", 0, 2, -1))
sketch20.addConstraint(Sketcher.Constraint("DistanceX", 1, 1, 1, 2, 70.0))
sketch20.addConstraint(Sketcher.Constraint("DistanceY", 0, 2, 0, 1, 880.0))
sketch20.addConstraint(Sketcher.Constraint("DistanceX", 0, 2, -1, 1, 136.705177))
pad17 = doc.addObject("PartDesign::Pad", "Pad016")
body15.addObject(pad17)
pad17.Profile = sketch20
pad17.Length = 620
body16 = doc.addObject("PartDesign::Body", "Body015")

# Sketch on XZ plane
sketch21 = doc.addObject("Sketcher::SketchObject", "Sketch020")
body16.addObject(sketch21)
sketch21.AttachmentSupport = (doc.getObject("XZ_Plane015"), [""])
sketch21.MapMode = "FlatFace"
sketch21.AttachmentOffset = App.Placement(App.Vector(0, 0, -1726.553475), App.Rotation())
add_polygon(sketch21, [(297.294823, 880), (297.294823, 0), (349.294823, 0), (349.294823, 880)])  # lines 0-3
sketch21.addConstraint(Sketcher.Constraint("Vertical", 0))
sketch21.addConstraint(Sketcher.Constraint("Horizontal", 1))
sketch21.addConstraint(Sketcher.Constraint("Vertical", 2))
sketch21.addConstraint(Sketcher.Constraint("Horizontal", 3))
sketch21.addConstraint(Sketcher.Constraint("PointOnObject", 0, 2, -1))
sketch21.addConstraint(Sketcher.Constraint("DistanceX", 1, 1, 1, 2, 52.0))
sketch21.addConstraint(Sketcher.Constraint("DistanceY", 0, 2, 0, 1, 880.0))
sketch21.addConstraint(Sketcher.Constraint("DistanceX", -1, 1, 0, 2, 297.294823))
pad18 = doc.addObject("PartDesign::Pad", "Pad017")
body16.addObject(pad18)
pad18.Profile = sketch21
pad18.Length = 620
body17 = doc.addObject("PartDesign::Body", "Body016")
body17.AllowCompound = True

# Sketch on YZ plane
sketch22 = doc.addObject("Sketcher::SketchObject", "Sketch021")
body17.addObject(sketch22)
sketch22.AttachmentSupport = (doc.getObject("YZ_Plane016"), [""])
sketch22.MapMode = "FlatFace"
sketch22.AttachmentOffset = App.Placement(App.Vector(0, 0, -136.705177), App.Rotation())
add_polygon(sketch22, [(-1536.446525, 1470), (-1536.446525, 1350), (-1476.446525, 1350), (-1476.446525, 1470)])  # lines 0-3
add_polygon(sketch22, [(-851.446525, 2160), (-851.446525, 2100), (-791.446525, 2100), (-791.446525, 2160)])  # lines 4-7
add_polygon(sketch22, [(-1311.446525, 830), (-1311.446525, 750), (-1231.446525, 750), (-1231.446525, 830)])  # lines 8-11
add_polygon(sketch22, [(-851.446525, 760), (-851.446525, 700), (-791.446525, 700), (-791.446525, 760)])  # lines 12-15
add_polygon(sketch22, [(1121.553475, 1380), (1121.553475, 1320), (1181.553475, 1320), (1181.553475, 1380)])  # lines 16-19
add_polygon(sketch22, [(-48.446525, 1170), (-48.446525, 1110), (71.553475, 1110), (71.553475, 1170)])  # lines 20-23
sketch22.addConstraint(Sketcher.Constraint("Vertical", 0))
sketch22.addConstraint(Sketcher.Constraint("Horizontal", 1))
sketch22.addConstraint(Sketcher.Constraint("Vertical", 2))
sketch22.addConstraint(Sketcher.Constraint("Horizontal", 3))
sketch22.addConstraint(Sketcher.Constraint("Vertical", 4))
sketch22.addConstraint(Sketcher.Constraint("Horizontal", 5))
sketch22.addConstraint(Sketcher.Constraint("Vertical", 6))
sketch22.addConstraint(Sketcher.Constraint("Horizontal", 7))
sketch22.addConstraint(Sketcher.Constraint("Vertical", 8))
sketch22.addConstraint(Sketcher.Constraint("Horizontal", 9))
sketch22.addConstraint(Sketcher.Constraint("Vertical", 10))
sketch22.addConstraint(Sketcher.Constraint("Horizontal", 11))
sketch22.addConstraint(Sketcher.Constraint("Vertical", 12))
sketch22.addConstraint(Sketcher.Constraint("Horizontal", 13))
sketch22.addConstraint(Sketcher.Constraint("Vertical", 14))
sketch22.addConstraint(Sketcher.Constraint("Horizontal", 15))
sketch22.addConstraint(Sketcher.Constraint("Vertical", 16))
sketch22.addConstraint(Sketcher.Constraint("Horizontal", 17))
sketch22.addConstraint(Sketcher.Constraint("Vertical", 18))
sketch22.addConstraint(Sketcher.Constraint("Horizontal", 19))
sketch22.addConstraint(Sketcher.Constraint("Vertical", 20))
sketch22.addConstraint(Sketcher.Constraint("Horizontal", 21))
sketch22.addConstraint(Sketcher.Constraint("Vertical", 22))
sketch22.addConstraint(Sketcher.Constraint("Horizontal", 23))
sketch22.addConstraint(Sketcher.Constraint("Vertical", 7, 2, 12, 2))
sketch22.addConstraint(Sketcher.Constraint("Vertical", 6, 2, 13, 2))
sketch22.addConstraint(Sketcher.Constraint("Equal", 3, 5))
sketch22.addConstraint(Sketcher.Constraint("Equal", 15, 17))
sketch22.addConstraint(Sketcher.Constraint("Equal", 23, 0))
sketch22.addConstraint(Sketcher.Constraint("Equal", 19, 4))
sketch22.addConstraint(Sketcher.Constraint("Equal", 11, 8))
sketch22.addConstraint(Sketcher.Constraint("Equal", 6, 12))
sketch22.addConstraint(Sketcher.Constraint("Equal", 14, 16))
sketch22.addConstraint(Sketcher.Constraint("Equal", 18, 20))
sketch22.addConstraint(Sketcher.Constraint("DistanceX", 1, 1, 1, 2, 60.0))
sketch22.addConstraint(Sketcher.Constraint("DistanceX", 9, 1, 9, 2, 80.0))
sketch22.addConstraint(Sketcher.Constraint("DistanceX", 21, 1, 21, 2, 120.0))
sketch22.addConstraint(Sketcher.Constraint("DistanceY", -1, 1, 0, 2, 1350.0))
sketch22.addConstraint(Sketcher.Constraint("DistanceY", -1, 1, 4, 2, 2100.0))
sketch22.addConstraint(Sketcher.Constraint("DistanceY", -1, 1, 8, 2, 750.0))
sketch22.addConstraint(Sketcher.Constraint("DistanceY", -1, 1, 12, 2, 700.0))
sketch22.addConstraint(Sketcher.Constraint("DistanceY", -1, 1, 16, 2, 1320.0))
sketch22.addConstraint(Sketcher.Constraint("DistanceY", -1, 1, 20, 2, 1110.0))
sketch22.addConstraint(Sketcher.Constraint("DistanceX", 2, 2, 4, 2, 625.0))
sketch22.addConstraint(Sketcher.Constraint("DistanceX", 1, 2, 8, 2, 165.0))
sketch22.addConstraint(Sketcher.Constraint("DistanceX", 14, 2, 16, 2, 1913.0))
sketch22.addConstraint(Sketcher.Constraint("DistanceX", 14, 2, 20, 2, 743.0))
sketch22.addConstraint(Sketcher.Constraint("DistanceX", 0, 2, -1, 1, 1536.446525))
pad19 = doc.addObject("PartDesign::Pad", "Pad018")
body17.addObject(pad19)
pad19.Profile = sketch22
pad19.Length = 25
pad19.Reversed = True
doc.recompute()

body18 = doc.addObject("PartDesign::Body", "Body017")
body18.BaseFeature = body17
boolean = doc.addObject("PartDesign::Boolean", "Boolean")
body3.addObject(boolean)
boolean.Type = "Cut"
boolean.addObjects([body18])
doc.recompute()

boolean2 = doc.addObject("PartDesign::Boolean", "Boolean001")
body4.addObject(boolean2)
boolean2.Type = "Cut"
boolean2.addObjects([body17])

doc.recompute()
